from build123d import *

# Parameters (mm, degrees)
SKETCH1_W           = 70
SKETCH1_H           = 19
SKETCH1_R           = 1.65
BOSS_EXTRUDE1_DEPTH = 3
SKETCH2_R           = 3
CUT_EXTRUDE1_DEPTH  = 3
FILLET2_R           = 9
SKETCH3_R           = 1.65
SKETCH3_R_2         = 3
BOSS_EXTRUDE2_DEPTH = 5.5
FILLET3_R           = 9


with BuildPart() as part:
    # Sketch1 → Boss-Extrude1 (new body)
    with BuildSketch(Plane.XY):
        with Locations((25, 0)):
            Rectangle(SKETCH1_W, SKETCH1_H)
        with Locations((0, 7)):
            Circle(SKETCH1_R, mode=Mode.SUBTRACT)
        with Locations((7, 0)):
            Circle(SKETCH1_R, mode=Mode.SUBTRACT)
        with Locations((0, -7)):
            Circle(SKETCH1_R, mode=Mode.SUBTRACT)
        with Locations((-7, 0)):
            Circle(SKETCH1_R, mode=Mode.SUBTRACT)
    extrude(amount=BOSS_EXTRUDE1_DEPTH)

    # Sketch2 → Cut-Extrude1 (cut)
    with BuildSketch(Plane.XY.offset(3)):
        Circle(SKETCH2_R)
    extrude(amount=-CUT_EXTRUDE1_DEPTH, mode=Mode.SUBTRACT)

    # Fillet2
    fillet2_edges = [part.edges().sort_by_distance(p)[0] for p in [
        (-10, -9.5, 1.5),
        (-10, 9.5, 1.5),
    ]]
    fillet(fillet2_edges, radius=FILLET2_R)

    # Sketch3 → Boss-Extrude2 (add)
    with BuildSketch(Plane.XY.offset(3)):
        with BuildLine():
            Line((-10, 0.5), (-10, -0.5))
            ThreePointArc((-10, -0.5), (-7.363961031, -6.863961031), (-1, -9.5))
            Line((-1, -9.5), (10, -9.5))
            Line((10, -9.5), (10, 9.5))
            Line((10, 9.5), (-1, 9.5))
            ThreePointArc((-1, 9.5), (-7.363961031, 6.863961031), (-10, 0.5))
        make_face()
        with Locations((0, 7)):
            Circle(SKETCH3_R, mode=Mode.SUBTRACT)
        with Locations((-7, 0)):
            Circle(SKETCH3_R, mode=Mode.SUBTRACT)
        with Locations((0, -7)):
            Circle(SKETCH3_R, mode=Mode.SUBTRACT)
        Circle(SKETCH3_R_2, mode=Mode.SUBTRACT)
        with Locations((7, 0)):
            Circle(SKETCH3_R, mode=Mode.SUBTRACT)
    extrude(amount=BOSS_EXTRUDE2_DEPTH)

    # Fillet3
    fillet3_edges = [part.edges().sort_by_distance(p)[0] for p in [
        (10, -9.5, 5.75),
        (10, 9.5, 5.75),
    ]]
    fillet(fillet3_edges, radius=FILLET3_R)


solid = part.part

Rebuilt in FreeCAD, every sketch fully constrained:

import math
import FreeCAD as App
import Part
import Sketcher
Q = App.Units.Quantity


def edges_at(feature, points):
    """Names of the edges that pass closest to the given points."""
    edges = feature.Shape.Edges
    near = lambda p: min(range(len(edges)), key=lambda i: edges[i].distToShape(Part.Vertex(*p))[0])
    return sorted({f"Edge{near(p) + 1}" for p in points})

doc = App.newDocument("Part")
body = doc.addObject("PartDesign::Body", "Body")

# Sketch on XY plane
sketch1 = body.newObject("Sketcher::SketchObject", "Sketch")
sketch1.AttachmentSupport = (doc.getObject("XY_Plane"), [""])
sketch1.MapMode = "FlatFace"
sketch1.addGeometry(Part.LineSegment(App.Vector(-10, 9.5, 0), App.Vector(-10, -9.5, 0)), False)
sketch1.addGeometry(Part.LineSegment(App.Vector(-10, -9.5, 0), App.Vector(60, -9.5, 0)), False)
sketch1.addGeometry(Part.LineSegment(App.Vector(60, -9.5, 0), App.Vector(60, 9.5, 0)), False)
sketch1.addGeometry(Part.LineSegment(App.Vector(60, 9.5, 0), App.Vector(-10, 9.5, 0)), False)
sketch1.addGeometry(Part.Circle(App.Vector(0, -7, 0), App.Vector(0, 0, 1), 1.6), False)
sketch1.addGeometry(Part.Circle(App.Vector(-7, 0, 0), App.Vector(0, 0, 1), 1.6), False)
sketch1.addGeometry(Part.Circle(App.Vector(7, 0, 0), App.Vector(0, 0, 1), 1.6), False)
sketch1.addGeometry(Part.Circle(App.Vector(0, 7, 0), App.Vector(0, 0, 1), 1.6), False)
sketch1.addConstraint(Sketcher.Constraint("Coincident", 0, 2, 1, 1))
sketch1.addConstraint(Sketcher.Constraint("Coincident", 1, 2, 2, 1))
sketch1.addConstraint(Sketcher.Constraint("Coincident", 2, 2, 3, 1))
sketch1.addConstraint(Sketcher.Constraint("Coincident", 3, 2, 0, 1))
sketch1.addConstraint(Sketcher.Constraint("Vertical", 0))
sketch1.addConstraint(Sketcher.Constraint("Horizontal", 1))
sketch1.addConstraint(Sketcher.Constraint("Vertical", 2))
sketch1.addConstraint(Sketcher.Constraint("Horizontal", 3))
sketch1.addConstraint(Sketcher.Constraint("Equal", 4, 5))
sketch1.addConstraint(Sketcher.Constraint("Equal", 5, 6))
sketch1.addConstraint(Sketcher.Constraint("Equal", 6, 7))
sketch1.addConstraint(Sketcher.Constraint("Symmetric", 5, 3, 6, 3, -1, 1))
sketch1.addConstraint(Sketcher.Constraint("Symmetric", 4, 3, 7, 3, -1, 1))
sketch1.addConstraint(Sketcher.Constraint("PointOnObject", 4, 3, -2))
sketch1.addConstraint(Sketcher.Constraint("PointOnObject", 5, 3, -1))
sketch1.addConstraint(Sketcher.Constraint("Diameter", 4, Q("3.3 mm")))
sketch1.addConstraint(Sketcher.Constraint("DistanceX", 1, 1, 1, 2, Q("70 mm")))
sketch1.addConstraint(Sketcher.Constraint("DistanceY", 0, 2, 0, 1, Q("19 mm")))
sketch1.addConstraint(Sketcher.Constraint("DistanceY", 4, 3, -1, 1, Q("7 mm")))
sketch1.addConstraint(Sketcher.Constraint("DistanceX", 5, 3, -1, 1, Q("7 mm")))
sketch1.addConstraint(Sketcher.Constraint("DistanceX", 0, 2, -1, 1, Q("10 mm")))
sketch1.addConstraint(Sketcher.Constraint("DistanceY", 0, 2, -1, 1, Q("9.5 mm")))
pad1 = body.newObject("PartDesign::Pad", "Pad")
pad1.Profile = sketch1
pad1.Length = 3

# Sketch on XY plane
sketch2 = body.newObject("Sketcher::SketchObject", "Sketch001")
sketch2.AttachmentSupport = (doc.getObject("XY_Plane"), [""])
sketch2.MapMode = "FlatFace"
sketch2.AttachmentOffset = App.Placement(App.Vector(0, 0, 3), App.Rotation())
sketch2.addGeometry(Part.Circle(App.Vector(0, 0, 0), App.Vector(0, 0, 1), 3), False)
sketch2.addConstraint(Sketcher.Constraint("Coincident", 0, 3, -1, 1))
sketch2.addConstraint(Sketcher.Constraint("Diameter", 0, Q("6 mm")))
pocket1 = body.newObject("PartDesign::Pocket", "Pocket")
pocket1.Profile = sketch2
pocket1.Length = 3
doc.recompute()

fillet = body.newObject("PartDesign::Fillet", "Fillet")
fillet.Base = (pocket1, edges_at(pocket1, [(-10, -9.5, 1.5), (-10, 9.5, 1.5)]))
fillet.Radius = 9

# Sketch on XY plane
sketch3 = body.newObject("Sketcher::SketchObject", "Sketch002")
sketch3.AttachmentSupport = (doc.getObject("XY_Plane"), [""])
sketch3.MapMode = "FlatFace"
sketch3.AttachmentOffset = App.Placement(App.Vector(0, 0, 3), App.Rotation())
sketch3.addGeometry(Part.LineSegment(App.Vector(-10, 0.5, 0), App.Vector(-10, -0.5, 0)), False)
sketch3.addGeometry(Part.ArcOfCircle(Part.Circle(App.Vector(-1, -0.5, 0), App.Vector(0, 0, 1), 9), math.radians(180), math.radians(270)), False)
sketch3.addGeometry(Part.LineSegment(App.Vector(-1, -9.5, 0), App.Vector(10, -9.5, 0)), False)
sketch3.addGeometry(Part.LineSegment(App.Vector(10, -9.5, 0), App.Vector(10, 9.5, 0)), False)
sketch3.addGeometry(Part.LineSegment(App.Vector(10, 9.5, 0), App.Vector(-1, 9.5, 0)), False)
sketch3.addGeometry(Part.ArcOfCircle(Part.Circle(App.Vector(-1, 0.5, 0), App.Vector(0, 0, 1), 9), math.radians(90), math.radians(180)), False)
sketch3.addGeometry(Part.Circle(App.Vector(0, -7, 0), App.Vector(0, 0, 1), 1.6), False)
sketch3.addGeometry(Part.Circle(App.Vector(-7, 0, 0), App.Vector(0, 0, 1), 1.6), False)
sketch3.addGeometry(Part.Circle(App.Vector(0, 0, 0), App.Vector(0, 0, 1), 3), False)
sketch3.addGeometry(Part.Circle(App.Vector(7, 0, 0), App.Vector(0, 0, 1), 1.6), False)
sketch3.addGeometry(Part.Circle(App.Vector(0, 7, 0), App.Vector(0, 0, 1), 1.6), False)
sketch3.addConstraint(Sketcher.Constraint("Tangent", 0, 2, 1, 1))
sketch3.addConstraint(Sketcher.Constraint("Tangent", 1, 2, 2, 1))
sketch3.addConstraint(Sketcher.Constraint("Coincident", 2, 2, 3, 1))
sketch3.addConstraint(Sketcher.Constraint("Coincident", 3, 2, 4, 1))
sketch3.addConstraint(Sketcher.Constraint("Tangent", 4, 2, 5, 1))
sketch3.addConstraint(Sketcher.Constraint("Tangent", 5, 2, 0, 1))
sketch3.addConstraint(Sketcher.Constraint("Vertical", 0))
sketch3.addConstraint(Sketcher.Constraint("Horizontal", 2))
sketch3.addConstraint(Sketcher.Constraint("Vertical", 3))
sketch3.addConstraint(Sketcher.Constraint("Horizontal", 4))
sketch3.addConstraint(Sketcher.Constraint("Coincident", 8, 3, -1, 1))
sketch3.addConstraint(Sketcher.Constraint("Equal", 1, 5))
sketch3.addConstraint(Sketcher.Constraint("Equal", 6, 7))
sketch3.addConstraint(Sketcher.Constraint("Equal", 7, 9))
sketch3.addConstraint(Sketcher.Constraint("Equal", 9, 10))
sketch3.addConstraint(Sketcher.Constraint("Symmetric", 7, 3, 9, 3, -1, 1))
sketch3.addConstraint(Sketcher.Constraint("Symmetric", 6, 3, 10, 3, -1, 1))
sketch3.addConstraint(Sketcher.Constraint("PointOnObject", 6, 3, -2))
sketch3.addConstraint(Sketcher.Constraint("PointOnObject", 7, 3, -1))
sketch3.addConstraint(Sketcher.Constraint("Diameter", 8, Q("6 mm")))
sketch3.addConstraint(Sketcher.Constraint("Radius", 1, Q("9 mm")))
sketch3.addConstraint(Sketcher.Constraint("Diameter", 6, Q("3.3 mm")))
sketch3.addConstraint(Sketcher.Constraint("DistanceX", 2, 1, 2, 2, Q("11 mm")))
sketch3.addConstraint(Sketcher.Constraint("DistanceY", 0, 2, 0, 1, Q("1 mm")))
sketch3.addConstraint(Sketcher.Constraint("DistanceX", 1, 3, -1, 1, Q("1 mm")))
sketch3.addConstraint(Sketcher.Constraint("DistanceY", 6, 3, -1, 1, Q("7 mm")))
sketch3.addConstraint(Sketcher.Constraint("DistanceX", 7, 3, -1, 1, Q("7 mm")))
sketch3.addConstraint(Sketcher.Constraint("DistanceY", 1, 3, -1, 1, Q("0.5 mm")))
pad2 = body.newObject("PartDesign::Pad", "Pad001")
pad2.Profile = sketch3
pad2.Length = 5.5
doc.recompute()

fillet2 = body.newObject("PartDesign::Fillet", "Fillet001")
fillet2.Base = (pad2, edges_at(pad2, [(10, -9.5, 5.75), (10, 9.5, 5.75)]))
fillet2.Radius = 9

doc.recompute()
